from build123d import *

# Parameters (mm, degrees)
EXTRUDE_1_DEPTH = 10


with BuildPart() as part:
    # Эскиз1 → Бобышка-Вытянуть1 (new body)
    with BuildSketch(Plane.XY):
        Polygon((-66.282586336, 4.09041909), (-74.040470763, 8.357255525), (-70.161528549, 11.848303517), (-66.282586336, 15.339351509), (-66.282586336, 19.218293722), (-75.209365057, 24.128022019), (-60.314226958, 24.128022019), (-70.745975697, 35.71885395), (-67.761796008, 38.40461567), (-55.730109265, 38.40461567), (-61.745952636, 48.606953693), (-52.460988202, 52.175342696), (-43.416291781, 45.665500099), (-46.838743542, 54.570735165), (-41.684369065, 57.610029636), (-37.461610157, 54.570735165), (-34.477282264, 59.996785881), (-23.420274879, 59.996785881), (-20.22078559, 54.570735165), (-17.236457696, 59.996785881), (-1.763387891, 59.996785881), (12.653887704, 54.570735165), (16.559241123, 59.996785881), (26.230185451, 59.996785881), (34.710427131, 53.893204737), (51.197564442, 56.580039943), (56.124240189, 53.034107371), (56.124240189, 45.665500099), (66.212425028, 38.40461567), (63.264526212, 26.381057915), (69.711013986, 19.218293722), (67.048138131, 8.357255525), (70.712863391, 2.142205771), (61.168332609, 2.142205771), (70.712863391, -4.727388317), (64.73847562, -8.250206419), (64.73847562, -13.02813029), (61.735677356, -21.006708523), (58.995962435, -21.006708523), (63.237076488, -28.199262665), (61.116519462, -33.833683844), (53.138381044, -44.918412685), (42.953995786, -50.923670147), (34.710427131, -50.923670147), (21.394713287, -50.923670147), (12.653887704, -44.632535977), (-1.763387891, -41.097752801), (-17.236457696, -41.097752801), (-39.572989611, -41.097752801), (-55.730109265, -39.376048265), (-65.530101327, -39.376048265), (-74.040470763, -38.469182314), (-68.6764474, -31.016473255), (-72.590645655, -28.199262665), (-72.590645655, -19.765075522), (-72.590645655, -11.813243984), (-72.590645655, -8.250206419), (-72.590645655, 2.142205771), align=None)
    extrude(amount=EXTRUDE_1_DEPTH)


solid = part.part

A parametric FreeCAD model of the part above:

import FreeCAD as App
import Part
import Sketcher
Q = App.Units.Quantity

doc = App.newDocument("Part")
body = doc.addObject("PartDesign::Body", "Body")

# Sketch on XY plane
sketch1 = body.newObject("Sketcher::SketchObject", "Sketch")
sketch1.AttachmentSupport = (doc.getObject("XY_Plane"), [""])
sketch1.MapMode = "FlatFace"
sketch1.addGeometry(Part.LineSegment(App.Vector(-74.040471, 8.357256, 0), App.Vector(-66.282586, 4.090419, 0)), False)
sketch1.addGeometry(Part.LineSegment(App.Vector(-66.282586, 4.090419, 0), App.Vector(-72.590646, 2.142206, 0)), False)
sketch1.addGeometry(Part.LineSegment(App.Vector(-72.590646, 2.142206, 0), App.Vector(-72.590646, -28.199263, 0)), False)
sketch1.addGeometry(Part.LineSegment(App.Vector(-72.590646, -28.199263, 0), App.Vector(-68.676447, -31.016473, 0)), False)
sketch1.addGeometry(Part.LineSegment(App.Vector(-68.676447, -31.016473, 0), App.Vector(-74.040471, -38.469182, 0)), False)
sketch1.addGeometry(Part.LineSegment(App.Vector(-74.040471, -38.469182, 0), App.Vector(-65.530101, -39.376048, 0)), False)
sketch1.addGeometry(Part.LineSegment(App.Vector(-65.530101, -39.376048, 0), App.Vector(-55.730109, -39.376048, 0)), False)
sketch1.addGeometry(Part.LineSegment(App.Vector(-55.730109, -39.376048, 0), App.Vector(-39.57299, -41.097753, 0)), False)
sketch1.addGeometry(Part.LineSegment(App.Vector(-39.57299, -41.097753, 0), App.Vector(-1.763388, -41.097753, 0)), False)
sketch1.addGeometry(Part.LineSegment(App.Vector(-1.763388, -41.097753, 0), App.Vector(12.653888, -44.632536, 0)), False)
sketch1.addGeometry(Part.LineSegment(App.Vector(12.653888, -44.632536, 0), App.Vector(21.394713, -50.92367, 0)), False)
sketch1.addGeometry(Part.LineSegment(App.Vector(21.394713, -50.92367, 0), App.Vector(42.953996, -50.92367, 0)), False)
sketch1.addGeometry(Part.LineSegment(App.Vector(42.953996, -50.92367, 0), App.Vector(53.138381, -44.918413, 0)), False)
sketch1.addGeometry(Part.LineSegment(App.Vector(53.138381, -44.918413, 0), App.Vector(61.116519, -33.833684, 0)), False)
sketch1.addGeometry(Part.LineSegment(App.Vector(61.116519, -33.833684, 0), App.Vector(63.237076, -28.199263, 0)), False)
sketch1.addGeometry(Part.LineSegment(App.Vector(63.237076, -28.199263, 0), App.Vector(58.995962, -21.006709, 0)), False)
sketch1.addGeometry(Part.LineSegment(App.Vector(58.995962, -21.006709, 0), App.Vector(61.735677, -21.006709, 0)), False)
sketch1.addGeometry(Part.LineSegment(App.Vector(61.735677, -21.006709, 0), App.Vector(64.738476, -13.02813, 0)), False)
sketch1.addGeometry(Part.LineSegment(App.Vector(64.738476, -13.02813, 0), App.Vector(64.738476, -8.250206, 0)), False)
sketch1.addGeometry(Part.LineSegment(App.Vector(64.738476, -8.250206, 0), App.Vector(70.712863, -4.727388, 0)), False)
sketch1.addGeometry(Part.LineSegment(App.Vector(70.712863, -4.727388, 0), App.Vector(61.168333, 2.142206, 0)), False)
sketch1.addGeometry(Part.LineSegment(App.Vector(61.168333, 2.142206, 0), App.Vector(70.712863, 2.142206, 0)), False)
sketch1.addGeometry(Part.LineSegment(App.Vector(70.712863, 2.142206, 0), App.Vector(67.048138, 8.357256, 0)), False)
sketch1.addGeometry(Part.LineSegment(App.Vector(67.048138, 8.357256, 0), App.Vector(69.711014, 19.218294, 0)), False)
sketch1.addGeometry(Part.LineSegment(App.Vector(69.711014, 19.218294, 0), App.Vector(63.264526, 26.381058, 0)), False)
sketch1.addGeometry(Part.LineSegment(App.Vector(63.264526, 26.381058, 0), App.Vector(66.212425, 38.404616, 0)), False)
sketch1.addGeometry(Part.LineSegment(App.Vector(66.212425, 38.404616, 0), App.Vector(56.12424, 45.6655, 0)), False)
sketch1.addGeometry(Part.LineSegment(App.Vector(56.12424, 45.6655, 0), App.Vector(56.12424, 53.034107, 0)), False)
sketch1.addGeometry(Part.LineSegment(App.Vector(56.12424, 53.034107, 0), App.Vector(51.197564, 56.58004, 0)), False)
sketch1.addGeometry(Part.LineSegment(App.Vector(51.197564, 56.58004, 0), App.Vector(34.710427, 53.893205, 0)), False)
sketch1.addGeometry(Part.LineSegment(App.Vector(34.710427, 53.893205, 0), App.Vector(26.230185, 59.996786, 0)), False)
sketch1.addGeometry(Part.LineSegment(App.Vector(26.230185, 59.996786, 0), App.Vector(16.559241, 59.996786, 0)), False)
sketch1.addGeometry(Part.LineSegment(App.Vector(16.559241, 59.996786, 0), App.Vector(12.653888, 54.570735, 0)), False)
sketch1.addGeometry(Part.LineSegment(App.Vector(12.653888, 54.570735, 0), App.Vector(-1.763388, 59.996786, 0)), False)
sketch1.addGeometry(Part.LineSegment(App.Vector(-1.763388, 59.996786, 0), App.Vector(-17.236458, 59.996786, 0)), False)
sketch1.addGeometry(Part.LineSegment(App.Vector(-17.236458, 59.996786, 0), App.Vector(-20.220786, 54.570735, 0)), False)
sketch1.addGeometry(Part.LineSegment(App.Vector(-20.220786, 54.570735, 0), App.Vector(-23.420275, 59.996786, 0)), False)
sketch1.addGeometry(Part.LineSegment(App.Vector(-23.420275, 59.996786, 0), App.Vector(-34.477282, 59.996786, 0)), False)
sketch1.addGeometry(Part.LineSegment(App.Vector(-34.477282, 59.996786, 0), App.Vector(-37.46161, 54.570735, 0)), False)
sketch1.addGeometry(Part.LineSegment(App.Vector(-37.46161, 54.570735, 0), App.Vector(-41.684369, 57.61003, 0)), False)
sketch1.addGeometry(Part.LineSegment(App.Vector(-41.684369, 57.61003, 0), App.Vector(-46.838744, 54.570735, 0)), False)
sketch1.addGeometry(Part.LineSegment(App.Vector(-46.838744, 54.570735, 0), App.Vector(-43.416292, 45.6655, 0)), False)
sketch1.addGeometry(Part.LineSegment(App.Vector(-43.416292, 45.6655, 0), App.Vector(-52.460988, 52.175343, 0)), False)
sketch1.addGeometry(Part.LineSegment(App.Vector(-52.460988, 52.175343, 0), App.Vector(-61.745953, 48.606954, 0)), False)
sketch1.addGeometry(Part.LineSegment(App.Vector(-61.745953, 48.606954, 0), App.Vector(-55.730109, 38.404616, 0)), False)
sketch1.addGeometry(Part.LineSegment(App.Vector(-55.730109, 38.404616, 0), App.Vector(-67.761796, 38.404616, 0)), False)
sketch1.addGeometry(Part.LineSegment(App.Vector(-67.761796, 38.404616, 0), App.Vector(-70.745976, 35.718854, 0)), False)
sketch1.addGeometry(Part.LineSegment(App.Vector(-70.745976, 35.718854, 0), App.Vector(-60.314227, 24.128022, 0)), False)
sketch1.addGeometry(Part.LineSegment(App.Vector(-60.314227, 24.128022, 0), App.Vector(-75.209365, 24.128022, 0)), False)
sketch1.addGeometry(Part.LineSegment(App.Vector(-75.209365, 24.128022, 0), App.Vector(-66.282586, 19.218294, 0)), False)
sketch1.addGeometry(Part.LineSegment(App.Vector(-66.282586, 19.218294, 0), App.Vector(-66.282586, 15.339352, 0)), False)
sketch1.addGeometry(Part.LineSegment(App.Vector(-66.282586, 15.339352, 0), App.Vector(-70.161529, 11.848304, 0)), False)
sketch1.addGeometry(Part.LineSegment(App.Vector(-70.161529, 11.848304, 0), App.Vector(-74.040471, 8.357256, 0)), False)
sketch1.addConstraint(Sketcher.Constraint("Coincident", 0, 2, 1, 1))
sketch1.addConstraint(Sketcher.Constraint("Coincident", 1, 2, 2, 1))
sketch1.addConstraint(Sketcher.Constraint("Coincident", 2, 2, 3, 1))
sketch1.addConstraint(Sketcher.Constraint("Coincident", 3, 2, 4, 1))
sketch1.addConstraint(Sketcher.Constraint("Coincident", 4, 2, 5, 1))
sketch1.addConstraint(Sketcher.Constraint("Coincident", 5, 2, 6, 1))
sketch1.addConstraint(Sketcher.Constraint("Coincident", 6, 2, 7, 1))
sketch1.addConstraint(Sketcher.Constraint("Coincident", 7, 2, 8, 1))
sketch1.addConstraint(Sketcher.Constraint("Coincident", 8, 2, 9, 1))
sketch1.addConstraint(Sketcher.Constraint("Coincident", 9, 2, 10, 1))
sketch1.addConstraint(Sketcher.Constraint("Coincident", 10, 2, 11, 1))
sketch1.addConstraint(Sketcher.Constraint("Coincident", 11, 2, 12, 1))
sketch1.addConstraint(Sketcher.Constraint("Coincident", 12, 2, 13, 1))
sketch1.addConstraint(Sketcher.Constraint("Coincident", 13, 2, 14, 1))
sketch1.addConstraint(Sketcher.Constraint("Coincident", 14, 2, 15, 1))
sketch1.addConstraint(Sketcher.Constraint("Coincident", 15, 2, 16, 1))
sketch1.addConstraint(Sketcher.Constraint("Coincident", 16, 2, 17, 1))
sketch1.addConstraint(Sketcher.Constraint("Coincident", 17, 2, 18, 1))
sketch1.addConstraint(Sketcher.Constraint("Coincident", 18, 2, 19, 1))
sketch1.addConstraint(Sketcher.Constraint("Coincident", 19, 2, 20, 1))
sketch1.addConstraint(Sketcher.Constraint("Coincident", 20, 2, 21, 1))
sketch1.addConstraint(Sketcher.Constraint("Coincident", 21, 2, 22, 1))
sketch1.addConstraint(Sketcher.Constraint("Coincident", 22, 2, 23, 1))
sketch1.addConstraint(Sketcher.Constraint("Coincident", 23, 2, 24, 1))
sketch1.addConstraint(Sketcher.Constraint("Coincident", 24, 2, 25, 1))
sketch1.addConstraint(Sketcher.Constraint("Coincident", 25, 2, 26, 1))
sketch1.addConstraint(Sketcher.Constraint("Coincident", 26, 2, 27, 1))
sketch1.addConstraint(Sketcher.Constraint("Coincident", 27, 2, 28, 1))
sketch1.addConstraint(Sketcher.Constraint("Coincident", 28, 2, 29, 1))
sketch1.addConstraint(Sketcher.Constraint("Coincident", 29, 2, 30, 1))
sketch1.addConstraint(Sketcher.Constraint("Coincident", 30, 2, 31, 1))
sketch1.addConstraint(Sketcher.Constraint("Coincident", 31, 2, 32, 1))
sketch1.addConstraint(Sketcher.Constraint("Coincident", 32, 2, 33, 1))
sketch1.addConstraint(Sketcher.Constraint("Coincident", 33, 2, 34, 1))
sketch1.addConstraint(Sketcher.Constraint("Coincident", 34, 2, 35, 1))
sketch1.addConstraint(Sketcher.Constraint("Coincident", 35, 2, 36, 1))
sketch1.addConstraint(Sketcher.Constraint("Coincident", 36, 2, 37, 1))
sketch1.addConstraint(Sketcher.Constraint("Coincident", 37, 2, 38, 1))
sketch1.addConstraint(Sketcher.Constraint("Coincident", 38, 2, 39, 1))
sketch1.addConstraint(Sketcher.Constraint("Coincident", 39, 2, 40, 1))
sketch1.addConstraint(Sketcher.Constraint("Coincident", 40, 2, 41, 1))
sketch1.addConstraint(Sketcher.Constraint("Coincident", 41, 2, 42, 1))
sketch1.addConstraint(Sketcher.Constraint("Coincident", 42, 2, 43, 1))
sketch1.addConstraint(Sketcher.Constraint("Coincident", 43, 2, 44, 1))
sketch1.addConstraint(Sketcher.Constraint("Coincident", 44, 2, 45, 1))
sketch1.addConstraint(Sketcher.Constraint("Coincident", 45, 2, 46, 1))
sketch1.addConstraint(Sketcher.Constraint("Coincident", 46, 2, 47, 1))
sketch1.addConstraint(Sketcher.Constraint("Coincident", 47, 2, 48, 1))
sketch1.addConstraint(Sketcher.Constraint("Coincident", 48, 2, 49, 1))
sketch1.addConstraint(Sketcher.Constraint("Coincident", 49, 2, 50, 1))
sketch1.addConstraint(Sketcher.Constraint("Coincident", 50, 2, 51, 1))
sketch1.addConstraint(Sketcher.Constraint("Coincident", 51, 2, 52, 1))
sketch1.addConstraint(Sketcher.Constraint("Coincident", 52, 2, 0, 1))
sketch1.addConstraint(Sketcher.Constraint("Vertical", 2))
sketch1.addConstraint(Sketcher.Constraint("Horizontal", 6))
sketch1.addConstraint(Sketcher.Constraint("Horizontal", 8))
sketch1.addConstraint(Sketcher.Constraint("Horizontal", 11))
sketch1.addConstraint(Sketcher.Constraint("Horizontal", 16))
sketch1.addConstraint(Sketcher.Constraint("Vertical", 18))
sketch1.addConstraint(Sketcher.Constraint("Horizontal", 21))
sketch1.addConstraint(Sketcher.Constraint("Vertical", 27))
sketch1.addConstraint(Sketcher.Constraint("Horizontal", 31))
sketch1.addConstraint(Sketcher.Constraint("Horizontal", 34))
sketch1.addConstraint(Sketcher.Constraint("Horizontal", 37))
sketch1.addConstraint(Sketcher.Constraint("Horizontal", 45))
sketch1.addConstraint(Sketcher.Constraint("Horizontal", 48))
sketch1.addConstraint(Sketcher.Constraint("Vertical", 50))
sketch1.addConstraint(Sketcher.Constraint("DistanceX", 8, 1, 8, 2, Q("37.809602 mm")))
sketch1.addConstraint(Sketcher.Constraint("DistanceX", 31, 2, 27, 2, Q("39.564999 mm")))
sketch1.addConstraint(Sketcher.Constraint("DistanceX", 21, 1, 21, 2, Q("9.544531 mm")))
sketch1.addConstraint(Sketcher.Constraint("DistanceX", 34, 2, 34, 1, Q("15.47307 mm")))
sketch1.addConstraint(Sketcher.Constraint("DistanceX", 48, 2, 48, 1, Q("14.895138 mm")))
sketch1.addConstraint(Sketcher.Constraint("DistanceY", 2, 2, 2, 1, Q("30.341468 mm")))
sketch1.addConstraint(Sketcher.Constraint("DistanceX", 5, 2, -1, 1, Q("65.530101 mm")))
sketch1.addConstraint(Sketcher.Constraint("DistanceY", -1, 1, 26, 2, Q("45.6655 mm")))
sketch1.addConstraint(Sketcher.Constraint("DistanceY", -1, 1, 41, 2, Q("45.6655 mm")))
sketch1.addConstraint(Sketcher.Constraint("DistanceX", 2, 2, 3, 2, Q("3.914198 mm")))
sketch1.addConstraint(Sketcher.Constraint("DistanceY", 4, 2, 0, 2, Q("42.559601 mm")))
sketch1.addConstraint(Sketcher.Constraint("DistanceX", 8, 2, 10, 2, Q("23.158101 mm")))
sketch1.addConstraint(Sketcher.Constraint("DistanceX", 16, 2, 14, 2, Q("1.501399 mm")))
sketch1.addConstraint(Sketcher.Constraint("DistanceX", 16, 2, 17, 2, Q("3.002798 mm")))
sketch1.addConstraint(Sketcher.Constraint("DistanceX", 15, 2, 19, 2, Q("11.716901 mm")))
sketch1.addConstraint(Sketcher.Constraint("DistanceY", 18, 2, 23, 2, Q("27.4685 mm")))
sketch1.addConstraint(Sketcher.Constraint("DistanceX", 24, 2, 25, 2, Q("2.947899 mm")))
sketch1.addConstraint(Sketcher.Constraint("DistanceX", 29, 2, 24, 2, Q("28.554099 mm")))
sketch1.addConstraint(Sketcher.Constraint("DistanceX", 34, 2, 31, 2, Q("33.795699 mm")))
sketch1.addConstraint(Sketcher.Constraint("DistanceY", 46, 2, 43, 2, Q("12.8881 mm")))
sketch1.addConstraint(Sketcher.Constraint("Distance", 0, Q("8.85385 mm")))
sketch1.addConstraint(Sketcher.Constraint("Distance", 5, Q("8.558551 mm")))
sketch1.addConstraint(Sketcher.Constraint("Distance", 10, Q("10.76942 mm")))
sketch1.addConstraint(Sketcher.Constraint("Distance", 20, Q("11.759651 mm")))
sketch1.addConstraint(Sketcher.Constraint("Distance", 28, Q("6.070072 mm")))
sketch1.addConstraint(Sketcher.Constraint("Distance", 30, Q("10.448359 mm")))
sketch1.addConstraint(Sketcher.Constraint("Distance", 33, Q("15.40454 mm")))
sketch1.addConstraint(Sketcher.Constraint("Distance", 39, Q("5.202788 mm")))
sketch1.addConstraint(Sketcher.Constraint("Distance", 40, Q("5.983719 mm")))
sketch1.addConstraint(Sketcher.Constraint("Distance", 41, Q("9.540251 mm")))
sketch1.addConstraint(Sketcher.Constraint("Distance", 43, Q("9.947058 mm")))
sketch1.addConstraint(Sketcher.Constraint("Distance", 47, Q("15.59387 mm")))
sketch1.addConstraint(Sketcher.Constraint("DistanceX", 6, 1, 6, 2, Q("9.799992 mm")))
sketch1.addConstraint(Sketcher.Constraint("DistanceX", 11, 1, 11, 2, Q("21.559282 mm")))
sketch1.addConstraint(Sketcher.Constraint("DistanceX", 16, 1, 16, 2, Q("2.739715 mm")))
sketch1.addConstraint(Sketcher.Constraint("DistanceX", 31, 2, 31, 1, Q("9.670944 mm")))
sketch1.addConstraint(Sketcher.Constraint("DistanceX", 37, 2, 37, 1, Q("11.057007 mm")))
sketch1.addConstraint(Sketcher.Constraint("DistanceX", 45, 2, 45, 1, Q("12.031687 mm")))
sketch1.addConstraint(Sketcher.Constraint("DistanceY", 18, 1, 18, 2, Q("4.777924 mm")))
sketch1.addConstraint(Sketcher.Constraint("DistanceY", 27, 1, 27, 2, Q("7.368607 mm")))
sketch1.addConstraint(Sketcher.Constraint("DistanceY", 50, 2, 50, 1, Q("3.878942 mm")))
sketch1.addConstraint(Sketcher.Constraint("DistanceY", -1, 1, 0, 2, Q("4.090419 mm")))
sketch1.addConstraint(Sketcher.Constraint("DistanceX", 4, 2, -1, 1, Q("74.040471 mm")))
sketch1.addConstraint(Sketcher.Constraint("DistanceX", 7, 2, -1, 1, Q("39.57299 mm")))
sketch1.addConstraint(Sketcher.Constraint("DistanceY", 10, 2, -1, 1, Q("50.92367 mm")))
sketch1.addConstraint(Sketcher.Constraint("DistanceX", -1, 1, 12, 2, Q("53.138381 mm")))
sketch1.addConstraint(Sketcher.Constraint("DistanceX", -1, 1, 13, 2, Q("61.116519 mm")))
sketch1.addConstraint(Sketcher.Constraint("DistanceY", 15, 2, -1, 1, Q("21.006709 mm")))
sketch1.addConstraint(Sketcher.Constraint("DistanceY", 17, 2, -1, 1, Q("13.02813 mm")))
sketch1.addConstraint(Sketcher.Constraint("DistanceY", 19, 2, -1, 1, Q("4.727388 mm")))
sketch1.addConstraint(Sketcher.Constraint("DistanceX", -1, 1, 22, 2, Q("67.048138 mm")))
sketch1.addConstraint(Sketcher.Constraint("DistanceX", -1, 1, 26, 2, Q("56.12424 mm")))
sketch1.addConstraint(Sketcher.Constraint("DistanceY", -1, 1, 28, 2, Q("56.58004 mm")))
sketch1.addConstraint(Sketcher.Constraint("DistanceX", 38, 2, -1, 1, Q("37.46161 mm")))
sketch1.addConstraint(Sketcher.Constraint("DistanceX", 39, 2, -1, 1, Q("41.684369 mm")))
sketch1.addConstraint(Sketcher.Constraint("DistanceY", -1, 1, 39, 2, Q("57.61003 mm")))
sketch1.addConstraint(Sketcher.Constraint("DistanceX", 41, 2, -1, 1, Q("43.416292 mm")))
sketch1.addConstraint(Sketcher.Constraint("DistanceX", 42, 2, -1, 1, Q("52.460988 mm")))
sketch1.addConstraint(Sketcher.Constraint("DistanceX", 44, 2, -1, 1, Q("55.730109 mm")))
sketch1.addConstraint(Sketcher.Constraint("DistanceY", -1, 1, 50, 2, Q("15.339352 mm")))
sketch1.addConstraint(Sketcher.Constraint("DistanceX", 51, 2, -1, 1, Q("70.161529 mm")))
sketch1.addConstraint(Sketcher.Constraint("DistanceX", 52, 2, -1, 1, Q("74.040471 mm")))
sketch1.addConstraint(Sketcher.Constraint("DistanceX", 1, 2, 0, 2, Q("6.308059 mm")))
sketch1.addConstraint(Sketcher.Constraint("DistanceY", 2, 2, 0, 2, Q("32.289682 mm")))
sketch1.addConstraint(Sketcher.Constraint("DistanceY", 3, 2, 2, 2, Q("2.817211 mm")))
sketch1.addConstraint(Sketcher.Constraint("DistanceX", 3, 2, 6, 2, Q("12.946338 mm")))
sketch1.addConstraint(Sketcher.Constraint("DistanceY", 7, 2, 3, 2, Q("10.08128 mm")))
sketch1.addConstraint(Sketcher.Constraint("DistanceX", 5, 2, 9, 2, Q("78.183989 mm")))
sketch1.addConstraint(Sketcher.Constraint("DistanceY", 12, 2, 8, 2, Q("3.82066 mm")))
sketch1.addConstraint(Sketcher.Constraint("DistanceY", 12, 2, 13, 2, Q("11.084729 mm")))
sketch1.addConstraint(Sketcher.Constraint("DistanceY", 13, 2, 14, 2, Q("5.634421 mm")))
sketch1.addConstraint(Sketcher.Constraint("DistanceX", 11, 2, 14, 2, Q("20.283081 mm")))
sketch1.addConstraint(Sketcher.Constraint("DistanceX", 20, 2, 19, 2, Q("9.544531 mm")))
sketch1.addConstraint(Sketcher.Constraint("DistanceY", 21, 2, 22, 2, Q("6.21505 mm")))
sketch1.addConstraint(Sketcher.Constraint("DistanceX", 23, 2, 21, 2, Q("1.001849 mm")))
sketch1.addConstraint(Sketcher.Constraint("DistanceX", 24, 2, 22, 2, Q("3.783612 mm")))
sketch1.addConstraint(Sketcher.Constraint("DistanceY", 23, 2, 25, 2, Q("19.186322 mm")))
sketch1.addConstraint(Sketcher.Constraint("DistanceY", 24, 2, 27, 2, Q("26.653049 mm")))
sketch1.addConstraint(Sketcher.Constraint("DistanceY", 25, 2, 29, 2, Q("15.488589 mm")))
sketch1.addConstraint(Sketcher.Constraint("DistanceY", 32, 2, 31, 2, Q("5.426051 mm")))
sketch1.addConstraint(Sketcher.Constraint("DistanceX", 32, 2, 29, 2, Q("22.056539 mm")))
sketch1.addConstraint(Sketcher.Constraint("DistanceY", 35, 2, 34, 2, Q("5.426051 mm")))
sketch1.addConstraint(Sketcher.Constraint("DistanceX", 35, 2, 30, 2, Q("46.450971 mm")))
sketch1.addConstraint(Sketcher.Constraint("DistanceX", 36, 2, 35, 2, Q("3.199489 mm")))
sketch1.addConstraint(Sketcher.Constraint("DistanceY", 35, 2, 36, 2, Q("5.426051 mm")))
sketch1.addConstraint(Sketcher.Constraint("DistanceY", 43, 2, 42, 2, Q("3.568389 mm")))
sketch1.addConstraint(Sketcher.Constraint("DistanceY", 43, 2, 40, 2, Q("5.963781 mm")))
sketch1.addConstraint(Sketcher.Constraint("DistanceY", 44, 2, 43, 2, Q("10.202338 mm")))
sketch1.addConstraint(Sketcher.Constraint("DistanceX", 46, 2, 45, 2, Q("2.98418 mm")))
sketch1.addConstraint(Sketcher.Constraint("DistanceX", 46, 2, 47, 2, Q("10.431749 mm")))
sketch1.addConstraint(Sketcher.Constraint("DistanceX", 49, 2, 47, 2, Q("5.968359 mm")))
sketch1.addConstraint(Sketcher.Constraint("DistanceY", 51, 2, 49, 2, Q("7.36999 mm")))
pad1 = body.newObject("PartDesign::Pad", "Pad")
pad1.Profile = sketch1
pad1.Length = 10

doc.recompute()
